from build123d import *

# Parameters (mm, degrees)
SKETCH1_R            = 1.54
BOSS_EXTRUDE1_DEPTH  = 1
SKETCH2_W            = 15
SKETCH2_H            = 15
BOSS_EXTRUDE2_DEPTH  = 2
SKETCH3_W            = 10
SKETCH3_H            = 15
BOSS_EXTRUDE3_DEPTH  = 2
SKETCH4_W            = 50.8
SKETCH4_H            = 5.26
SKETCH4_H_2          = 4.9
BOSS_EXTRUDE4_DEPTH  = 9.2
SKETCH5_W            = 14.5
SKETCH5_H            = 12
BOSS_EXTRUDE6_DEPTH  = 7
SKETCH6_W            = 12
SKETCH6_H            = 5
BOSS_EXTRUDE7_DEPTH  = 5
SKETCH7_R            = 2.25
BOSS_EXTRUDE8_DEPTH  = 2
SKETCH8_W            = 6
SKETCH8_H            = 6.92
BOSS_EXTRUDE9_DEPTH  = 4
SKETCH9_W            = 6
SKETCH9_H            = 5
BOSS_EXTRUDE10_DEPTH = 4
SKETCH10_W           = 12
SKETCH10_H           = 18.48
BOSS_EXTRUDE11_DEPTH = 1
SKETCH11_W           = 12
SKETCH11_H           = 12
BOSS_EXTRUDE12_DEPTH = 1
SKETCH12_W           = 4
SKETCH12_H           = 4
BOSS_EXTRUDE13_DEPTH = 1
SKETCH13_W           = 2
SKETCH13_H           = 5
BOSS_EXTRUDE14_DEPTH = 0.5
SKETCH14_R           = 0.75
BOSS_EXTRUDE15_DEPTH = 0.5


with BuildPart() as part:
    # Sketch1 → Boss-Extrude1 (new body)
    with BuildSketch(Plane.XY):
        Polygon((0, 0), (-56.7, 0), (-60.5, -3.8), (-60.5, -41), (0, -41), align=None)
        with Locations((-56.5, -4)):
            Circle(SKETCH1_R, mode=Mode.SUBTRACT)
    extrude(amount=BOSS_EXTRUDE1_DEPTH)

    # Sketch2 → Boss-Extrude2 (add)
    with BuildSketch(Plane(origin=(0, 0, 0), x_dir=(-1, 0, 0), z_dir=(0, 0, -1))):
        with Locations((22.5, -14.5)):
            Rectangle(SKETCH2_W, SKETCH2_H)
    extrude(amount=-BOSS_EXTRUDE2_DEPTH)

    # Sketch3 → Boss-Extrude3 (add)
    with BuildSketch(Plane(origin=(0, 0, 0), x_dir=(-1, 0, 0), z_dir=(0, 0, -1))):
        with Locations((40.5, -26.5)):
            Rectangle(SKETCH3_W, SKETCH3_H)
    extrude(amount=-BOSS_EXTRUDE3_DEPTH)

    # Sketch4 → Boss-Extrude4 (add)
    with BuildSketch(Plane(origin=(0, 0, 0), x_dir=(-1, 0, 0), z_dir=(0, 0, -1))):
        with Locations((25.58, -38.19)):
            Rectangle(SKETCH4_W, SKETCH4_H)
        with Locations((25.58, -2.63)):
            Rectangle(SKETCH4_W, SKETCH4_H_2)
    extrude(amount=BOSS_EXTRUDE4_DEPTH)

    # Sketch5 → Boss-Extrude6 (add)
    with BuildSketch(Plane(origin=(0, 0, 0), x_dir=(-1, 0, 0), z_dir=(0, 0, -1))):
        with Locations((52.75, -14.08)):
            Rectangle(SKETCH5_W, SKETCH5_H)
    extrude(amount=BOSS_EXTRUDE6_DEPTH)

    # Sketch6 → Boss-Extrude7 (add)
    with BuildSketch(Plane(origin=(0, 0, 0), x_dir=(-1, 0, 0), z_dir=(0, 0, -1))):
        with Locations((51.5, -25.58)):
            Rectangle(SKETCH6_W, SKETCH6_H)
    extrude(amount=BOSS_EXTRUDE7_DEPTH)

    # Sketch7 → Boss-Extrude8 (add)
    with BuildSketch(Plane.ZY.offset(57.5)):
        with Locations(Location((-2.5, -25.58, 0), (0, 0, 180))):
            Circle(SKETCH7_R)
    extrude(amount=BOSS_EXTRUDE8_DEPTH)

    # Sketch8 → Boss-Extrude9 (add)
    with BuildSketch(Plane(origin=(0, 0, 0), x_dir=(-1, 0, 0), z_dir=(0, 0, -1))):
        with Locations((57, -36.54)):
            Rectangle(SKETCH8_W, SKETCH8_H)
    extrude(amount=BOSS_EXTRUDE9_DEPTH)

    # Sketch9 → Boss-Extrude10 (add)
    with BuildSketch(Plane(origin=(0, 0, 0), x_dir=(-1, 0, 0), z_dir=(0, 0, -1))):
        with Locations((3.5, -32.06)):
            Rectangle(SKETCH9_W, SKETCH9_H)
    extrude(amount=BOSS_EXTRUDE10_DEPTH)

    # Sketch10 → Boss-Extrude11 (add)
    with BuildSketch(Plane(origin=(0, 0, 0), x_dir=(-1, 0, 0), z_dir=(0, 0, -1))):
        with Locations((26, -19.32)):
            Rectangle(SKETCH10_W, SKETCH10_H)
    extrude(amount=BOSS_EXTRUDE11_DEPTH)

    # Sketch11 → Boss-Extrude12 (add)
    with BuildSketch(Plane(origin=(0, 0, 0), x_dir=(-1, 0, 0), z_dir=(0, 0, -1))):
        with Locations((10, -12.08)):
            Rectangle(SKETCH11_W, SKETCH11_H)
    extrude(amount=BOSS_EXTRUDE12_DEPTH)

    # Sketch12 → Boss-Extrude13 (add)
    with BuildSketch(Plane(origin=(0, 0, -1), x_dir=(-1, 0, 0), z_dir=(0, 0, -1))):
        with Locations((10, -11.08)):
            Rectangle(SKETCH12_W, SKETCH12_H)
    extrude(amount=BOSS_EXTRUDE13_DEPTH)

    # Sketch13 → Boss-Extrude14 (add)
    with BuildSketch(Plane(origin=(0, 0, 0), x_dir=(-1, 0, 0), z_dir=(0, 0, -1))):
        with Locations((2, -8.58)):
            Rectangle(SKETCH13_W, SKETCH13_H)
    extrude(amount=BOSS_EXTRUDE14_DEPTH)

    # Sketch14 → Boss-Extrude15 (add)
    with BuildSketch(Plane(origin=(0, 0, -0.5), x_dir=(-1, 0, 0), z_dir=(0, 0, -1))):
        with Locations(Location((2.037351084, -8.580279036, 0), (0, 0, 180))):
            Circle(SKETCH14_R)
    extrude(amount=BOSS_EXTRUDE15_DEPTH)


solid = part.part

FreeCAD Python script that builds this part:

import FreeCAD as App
import Part
import Sketcher

V = App.Vector
Q = App.Units.Quantity


def add_polygon(sketch, points):
    """Adds a closed chain of lines whose ends are joined by coincident constraints."""
    first, n = sketch.GeometryCount, len(points)
    for a, b in zip(points, points[1:] + points[:1]):
        sketch.addGeometry(Part.LineSegment(App.Vector(*a, 0), App.Vector(*b, 0)), False)
    for i in range(n):
        sketch.addConstraint(Sketcher.Constraint("Coincident", first + i, 2, first + (i + 1) % n, 1))

doc = App.newDocument("Part")
body = doc.addObject("PartDesign::Body", "Body")

# Sketch on XY plane
sketch1 = body.newObject("Sketcher::SketchObject", "Sketch")
sketch1.AttachmentSupport = (doc.getObject("XY_Plane"), [""])
sketch1.MapMode = "FlatFace"
add_polygon(sketch1, [(0, 0), (-56.7, 0), (-60.5, -3.8), (-60.5, -41), (0, -41)])  # lines 0-4
sketch1.addGeometry(Part.Circle(V(-56.5, -4, 0), V(0, 0, 1), 1.5), False)  # 5
sketch1.addConstraint([
    Sketcher.Constraint("Horizontal", 0),
    Sketcher.Constraint("Vertical", 2),
    Sketcher.Constraint("Horizontal", 3),
    Sketcher.Constraint("Vertical", 4),
    Sketcher.Constraint("Coincident", 4, 2, -1, 1),
    Sketcher.Constraint("Diameter", 5, 3.08),
    Sketcher.Constraint("DistanceY", 4, 1, 4, 2, 41.0),
    Sketcher.Constraint("Angle", 1, Q("-135 deg")),
    Sketcher.Constraint("DistanceX", 0, 2, 0, 1, 56.7),
    Sketcher.Constraint("DistanceX", 3, 1, 3, 2, 60.5),
    Sketcher.Constraint("DistanceY", 5, 3, -1, 1, 4.0),
    Sketcher.Constraint("DistanceX", 1, 2, 5, 3, 4.0),
])
pad1 = body.newObject("PartDesign::Pad", "Pad")
pad1.Profile = sketch1
pad1.Length = 1

# Sketch on XY plane
sketch2 = body.newObject("Sketcher::SketchObject", "Sketch001")
sketch2.AttachmentSupport = (doc.getObject("XY_Plane"), [""])
sketch2.MapMode = "FlatFace"
add_polygon(sketch2, [(-15, -7), (-15, -22), (-30, -22), (-30, -7)])  # lines 0-3
sketch2.addConstraint([
    Sketcher.Constraint("Vertical", 0),
    Sketcher.Constraint("Horizontal", 1),
    Sketcher.Constraint("Vertical", 2),
    Sketcher.Constraint("Horizontal", 3),
    Sketcher.Constraint("Equal", 3, 0),
    Sketcher.Constraint("DistanceX", 1, 2, 1, 1, 15.0),
    Sketcher.Constraint("DistanceX", 0, 2, -1, 1, 15.0),
    Sketcher.Constraint("DistanceY", 0, 2, -1, 1, 22.0),
])
pad2 = body.newObject("PartDesign::Pad", "Pad001")
pad2.Profile = sketch2
pad2.Length = 2

# Sketch on XY plane
sketch3 = body.newObject("Sketcher::SketchObject", "Sketch002")
sketch3.AttachmentSupport = (doc.getObject("XY_Plane"), [""])
sketch3.MapMode = "FlatFace"
add_polygon(sketch3, [(-36, -19), (-36, -34), (-46, -34), (-46, -19)])  # lines 0-3
sketch3.addConstraint([
    Sketcher.Constraint("Vertical", 0),
    Sketcher.Constraint("Horizontal", 1),
    Sketcher.Constraint("Vertical", 2),
    Sketcher.Constraint("Horizontal", 3),
    Sketcher.Constraint("DistanceX", 1, 2, 1, 1, 10.0),
    Sketcher.Constraint("DistanceY", 0, 2, 0, 1, 15.0),
    Sketcher.Constraint("DistanceY", 0, 2, -1, 1, 34.0),
    Sketcher.Constraint("DistanceX", 0, 2, -1, 1, 35.5),
])
pad3 = body.newObject("PartDesign::Pad", "Pad002")
pad3.Profile = sketch3
pad3.Length = 2

# Sketch on XY plane
sketch4 = body.newObject("Sketcher::SketchObject", "Sketch003")
sketch4.AttachmentSupport = (doc.getObject("XY_Plane"), [""])
sketch4.MapMode = "FlatFace"
add_polygon(sketch4, [(-0.2, -35.6), (-0.2, -40.8), (-51, -40.8), (-51, -35.6)])  # lines 0-3
add_polygon(sketch4, [(-0.2, -0.2), (-0.2, -5.1), (-51, -5.1), (-51, -0.2)])  # lines 4-7
sketch4.addConstraint([
    Sketcher.Constraint("Vertical", 0),
    Sketcher.Constraint("Horizontal", 1),
    Sketcher.Constraint("Vertical", 2),
    Sketcher.Constraint("Horizontal", 3),
    Sketcher.Constraint("Vertical", 4),
    Sketcher.Constraint("Horizontal", 5),
    Sketcher.Constraint("Vertical", 6),
    Sketcher.Constraint("Horizontal", 7),
    Sketcher.Constraint("Vertical", 3, 2, 4, 2),
    Sketcher.Constraint("Vertical", 2, 2, 5, 2),
    Sketcher.Constraint("DistanceX", 1, 2, 1, 1, 50.8),
    Sketcher.Constraint("DistanceY", 4, 2, 4, 1, 4.9),
    Sketcher.Constraint("DistanceY", 0, 2, 0, 1, 5.26),
    Sketcher.Constraint("DistanceX", 0, 2, -1, 1, 0.18),
    Sketcher.Constraint("DistanceY", 0, 2, -1, 1, 40.82),
    Sketcher.Constraint("DistanceY", 4, 2, -1, 1, 5.08),
])
pad4 = body.newObject("PartDesign::Pad", "Pad003")
pad4.Profile = sketch4
pad4.Length = 9.2
pad4.Reversed = True

# Sketch on XY plane
sketch5 = body.newObject("Sketcher::SketchObject", "Sketch004")
sketch5.AttachmentSupport = (doc.getObject("XY_Plane"), [""])
sketch5.MapMode = "FlatFace"
add_polygon(sketch5, [(-46, -8), (-46, -20), (-60, -20), (-60, -8)])  # lines 0-3
sketch5.addConstraint([
    Sketcher.Constraint("Vertical", 0),
    Sketcher.Constraint("Horizontal", 1),
    Sketcher.Constraint("Vertical", 2),
    Sketcher.Constraint("Horizontal", 3),
    Sketcher.Constraint("DistanceY", 0, 2, 0, 1, 12.0),
    Sketcher.Constraint("DistanceX", 1, 2, 1, 1, 14.5),
    Sketcher.Constraint("DistanceX", 1, 2, -1, 1, 60.0),
    Sketcher.Constraint("DistanceY", 0, 2, -1, 1, 20.08),
])
pad5 = body.newObject("PartDesign::Pad", "Pad004")
pad5.Profile = sketch5
pad5.Length = 7
pad5.Reversed = True

# Sketch on XY plane
sketch6 = body.newObject("Sketcher::SketchObject", "Sketch005")
sketch6.AttachmentSupport = (doc.getObject("XY_Plane"), [""])
sketch6.MapMode = "FlatFace"
add_polygon(sketch6, [(-46, -23), (-46, -28), (-58, -28), (-58, -23)])  # lines 0-3
sketch6.addConstraint([
    Sketcher.Constraint("Vertical", 0),
    Sketcher.Constraint("Horizontal", 1),
    Sketcher.Constraint("Vertical", 2),
    Sketcher.Constraint("Horizontal", 3),
    Sketcher.Constraint("DistanceX", 1, 2, 1, 1, 12.0),
    Sketcher.Constraint("DistanceY", 0, 2, 0, 1, 5.0),
    Sketcher.Constraint("DistanceX", 0, 2, -1, 1, 45.5),
    Sketcher.Constraint("DistanceY", 0, 2, -1, 1, 28.08),
])
pad6 = body.newObject("PartDesign::Pad", "Pad005")
pad6.Profile = sketch6
pad6.Length = 5
pad6.Reversed = True

# Sketch on YZ plane
sketch7 = body.newObject("Sketcher::SketchObject", "Sketch006")
sketch7.AttachmentSupport = (doc.getObject("YZ_Plane"), [""])
sketch7.MapMode = "FlatFace"
sketch7.AttachmentOffset = App.Placement(V(0, 0, -57.5), App.Rotation())
sketch7.addGeometry(Part.Circle(V(-25.6, -2.5, 0), V(0, 0, 1), 2.2), False)
sketch7.addConstraint([
    Sketcher.Constraint("Diameter", 0, 4.5),
    Sketcher.Constraint("DistanceY", 0, 3, -1, 1, 2.5),
    Sketcher.Constraint("DistanceX", 0, 3, -1, 1, 25.58),
])
pad7 = body.newObject("PartDesign::Pad", "Pad006")
pad7.Profile = sketch7
pad7.Length = 2
pad7.Reversed = True

# Sketch on XY plane
sketch8 = body.newObject("Sketcher::SketchObject", "Sketch007")
sketch8.AttachmentSupport = (doc.getObject("XY_Plane"), [""])
sketch8.MapMode = "FlatFace"
add_polygon(sketch8, [(-54, -33), (-54, -40), (-60, -40), (-60, -33)])  # lines 0-3
sketch8.addConstraint([
    Sketcher.Constraint("Vertical", 0),
    Sketcher.Constraint("Horizontal", 1),
    Sketcher.Constraint("Vertical", 2),
    Sketcher.Constraint("Horizontal", 3),
    Sketcher.Constraint("DistanceX", 1, 2, 1, 1, 6.0),
    Sketcher.Constraint("DistanceX", 0, 2, -1, 1, 54.0),
    Sketcher.Constraint("DistanceY", 0, 2, -1, 1, 40.0),
    Sketcher.Constraint("DistanceY", 0, 2, 0, 1, 6.92),
])
pad8 = body.newObject("PartDesign::Pad", "Pad007")
pad8.Profile = sketch8
pad8.Length = 4
pad8.Reversed = True

# Sketch on XY plane
sketch9 = body.newObject("Sketcher::SketchObject", "Sketch008")
sketch9.AttachmentSupport = (doc.getObject("XY_Plane"), [""])
sketch9.MapMode = "FlatFace"
add_polygon(sketch9, [(0, -30), (0, -35), (-6, -35), (-6, -30)])  # lines 0-3
sketch9.addConstraint([
    Sketcher.Constraint("Vertical", 0),
    Sketcher.Constraint("Horizontal", 1),
    Sketcher.Constraint("Vertical", 2),
    Sketcher.Constraint("Horizontal", 3),
    Sketcher.Constraint("DistanceX", 1, 2, 1, 1, 6.0),
    Sketcher.Constraint("DistanceY", 0, 2, 0, 1, 5.0),
    Sketcher.Constraint("DistanceX", 0, 2, -1, 1, 0.5),
    Sketcher.Constraint("DistanceY", 0, 2, -1, 1, 34.56),
])
pad9 = body.newObject("PartDesign::Pad", "Pad008")
pad9.Profile = sketch9
pad9.Length = 4
pad9.Reversed = True

# Sketch on XY plane
sketch10 = body.newObject("Sketcher::SketchObject", "Sketch009")
sketch10.AttachmentSupport = (doc.getObject("XY_Plane"), [""])
sketch10.MapMode = "FlatFace"
add_polygon(sketch10, [(-20, -10), (-20, -29), (-32, -29), (-32, -10)])  # lines 0-3
sketch10.addConstraint([
    Sketcher.Constraint("Vertical", 0),
    Sketcher.Constraint("Horizontal", 1),
    Sketcher.Constraint("Vertical", 2),
    Sketcher.Constraint("Horizontal", 3),
    Sketcher.Constraint("DistanceX", 1, 2, 1, 1, 12.0),
    Sketcher.Constraint("DistanceX", 0, 2, -1, 1, 20.0),
    Sketcher.Constraint("DistanceY", 0, 2, 0, 1, 18.48),
    Sketcher.Constraint("DistanceY", 0, 2, -1, 1, 28.56),
])
pad10 = body.newObject("PartDesign::Pad", "Pad009")
pad10.Profile = sketch10
pad10.Length = 1
pad10.Reversed = True

# Sketch on XY plane
sketch11 = body.newObject("Sketcher::SketchObject", "Sketch010")
sketch11.AttachmentSupport = (doc.getObject("XY_Plane"), [""])
sketch11.MapMode = "FlatFace"
add_polygon(sketch11, [(-4, -6), (-4, -18), (-16, -18), (-16, -6)])  # lines 0-3
sketch11.addConstraint([
    Sketcher.Constraint("Vertical", 0),
    Sketcher.Constraint("Horizontal", 1),
    Sketcher.Constraint("Vertical", 2),
    Sketcher.Constraint("Horizontal", 3),
    Sketcher.Constraint("Equal", 3, 0),
    Sketcher.Constraint("DistanceX", 1, 2, 1, 1, 12.0),
    Sketcher.Constraint("DistanceX", 0, 2, -1, 1, 4.0),
    Sketcher.Constraint("DistanceY", 0, 2, -1, 1, 18.08),
])
pad11 = body.newObject("PartDesign::Pad", "Pad010")
pad11.Profile = sketch11
pad11.Length = 1
pad11.Reversed = True

# Sketch on XY plane
sketch12 = body.newObject("Sketcher::SketchObject", "Sketch011")
sketch12.AttachmentSupport = (doc.getObject("XY_Plane"), [""])
sketch12.MapMode = "FlatFace"
sketch12.AttachmentOffset = App.Placement(V(0, 0, -1), App.Rotation())
add_polygon(sketch12, [(-8, -9.1), (-8, -13.1), (-12, -13.1), (-12, -9.1)])  # lines 0-3
sketch12.addConstraint([
    Sketcher.Constraint("Vertical", 0),
    Sketcher.Constraint("Horizontal", 1),
    Sketcher.Constraint("Vertical", 2),
    Sketcher.Constraint("Horizontal", 3),
    Sketcher.Constraint("Equal", 3, 0),
    Sketcher.Constraint("DistanceX", 1, 2, 1, 1, 4.0),
    Sketcher.Constraint("DistanceX", 0, 2, -1, 1, 8.0),
    Sketcher.Constraint("DistanceY", 0, 2, -1, 1, 13.08),
])
pad12 = body.newObject("PartDesign::Pad", "Pad011")
pad12.Profile = sketch12
pad12.Length = 1
pad12.Reversed = True

# Sketch on XY plane
sketch13 = body.newObject("Sketcher::SketchObject", "Sketch012")
sketch13.AttachmentSupport = (doc.getObject("XY_Plane"), [""])
sketch13.MapMode = "FlatFace"
add_polygon(sketch13, [(-1, -6.1), (-1, -11.1), (-3, -11.1), (-3, -6.1)])  # lines 0-3
sketch13.addConstraint([
    Sketcher.Constraint("Vertical", 0),
    Sketcher.Constraint("Horizontal", 1),
    Sketcher.Constraint("Vertical", 2),
    Sketcher.Constraint("Horizontal", 3),
    Sketcher.Constraint("DistanceX", 1, 2, 1, 1, 2.0),
    Sketcher.Constraint("DistanceY", 0, 2, 0, 1, 5.0),
    Sketcher.Constraint("DistanceX", 0, 2, -1, 1, 1.0),
    Sketcher.Constraint("DistanceY", 0, 2, -1, 1, 11.08),
])
pad13 = body.newObject("PartDesign::Pad", "Pad012")
pad13.Profile = sketch13
pad13.Length = 0.5
pad13.Reversed = True

# Sketch on XY plane
sketch14 = body.newObject("Sketcher::SketchObject", "Sketch013")
sketch14.AttachmentSupport = (doc.getObject("XY_Plane"), [""])
sketch14.MapMode = "FlatFace"
sketch14.AttachmentOffset = App.Placement(V(0, 0, -0.5), App.Rotation())
sketch14.addGeometry(Part.Circle(V(-2, -8.6, 0), V(0, 0, 1), 0.8), False)
sketch14.addConstraint([
    Sketcher.Constraint("Diameter", 0, 1.5),
    Sketcher.Constraint("DistanceX", 0, 3, -1, 1, 2.037351),
    Sketcher.Constraint("DistanceY", 0, 3, -1, 1, 8.580279),
])
pad14 = body.newObject("PartDesign::Pad", "Pad013")
pad14.Profile = sketch14
pad14.Length = 0.5
pad14.Reversed = True

doc.recompute()
